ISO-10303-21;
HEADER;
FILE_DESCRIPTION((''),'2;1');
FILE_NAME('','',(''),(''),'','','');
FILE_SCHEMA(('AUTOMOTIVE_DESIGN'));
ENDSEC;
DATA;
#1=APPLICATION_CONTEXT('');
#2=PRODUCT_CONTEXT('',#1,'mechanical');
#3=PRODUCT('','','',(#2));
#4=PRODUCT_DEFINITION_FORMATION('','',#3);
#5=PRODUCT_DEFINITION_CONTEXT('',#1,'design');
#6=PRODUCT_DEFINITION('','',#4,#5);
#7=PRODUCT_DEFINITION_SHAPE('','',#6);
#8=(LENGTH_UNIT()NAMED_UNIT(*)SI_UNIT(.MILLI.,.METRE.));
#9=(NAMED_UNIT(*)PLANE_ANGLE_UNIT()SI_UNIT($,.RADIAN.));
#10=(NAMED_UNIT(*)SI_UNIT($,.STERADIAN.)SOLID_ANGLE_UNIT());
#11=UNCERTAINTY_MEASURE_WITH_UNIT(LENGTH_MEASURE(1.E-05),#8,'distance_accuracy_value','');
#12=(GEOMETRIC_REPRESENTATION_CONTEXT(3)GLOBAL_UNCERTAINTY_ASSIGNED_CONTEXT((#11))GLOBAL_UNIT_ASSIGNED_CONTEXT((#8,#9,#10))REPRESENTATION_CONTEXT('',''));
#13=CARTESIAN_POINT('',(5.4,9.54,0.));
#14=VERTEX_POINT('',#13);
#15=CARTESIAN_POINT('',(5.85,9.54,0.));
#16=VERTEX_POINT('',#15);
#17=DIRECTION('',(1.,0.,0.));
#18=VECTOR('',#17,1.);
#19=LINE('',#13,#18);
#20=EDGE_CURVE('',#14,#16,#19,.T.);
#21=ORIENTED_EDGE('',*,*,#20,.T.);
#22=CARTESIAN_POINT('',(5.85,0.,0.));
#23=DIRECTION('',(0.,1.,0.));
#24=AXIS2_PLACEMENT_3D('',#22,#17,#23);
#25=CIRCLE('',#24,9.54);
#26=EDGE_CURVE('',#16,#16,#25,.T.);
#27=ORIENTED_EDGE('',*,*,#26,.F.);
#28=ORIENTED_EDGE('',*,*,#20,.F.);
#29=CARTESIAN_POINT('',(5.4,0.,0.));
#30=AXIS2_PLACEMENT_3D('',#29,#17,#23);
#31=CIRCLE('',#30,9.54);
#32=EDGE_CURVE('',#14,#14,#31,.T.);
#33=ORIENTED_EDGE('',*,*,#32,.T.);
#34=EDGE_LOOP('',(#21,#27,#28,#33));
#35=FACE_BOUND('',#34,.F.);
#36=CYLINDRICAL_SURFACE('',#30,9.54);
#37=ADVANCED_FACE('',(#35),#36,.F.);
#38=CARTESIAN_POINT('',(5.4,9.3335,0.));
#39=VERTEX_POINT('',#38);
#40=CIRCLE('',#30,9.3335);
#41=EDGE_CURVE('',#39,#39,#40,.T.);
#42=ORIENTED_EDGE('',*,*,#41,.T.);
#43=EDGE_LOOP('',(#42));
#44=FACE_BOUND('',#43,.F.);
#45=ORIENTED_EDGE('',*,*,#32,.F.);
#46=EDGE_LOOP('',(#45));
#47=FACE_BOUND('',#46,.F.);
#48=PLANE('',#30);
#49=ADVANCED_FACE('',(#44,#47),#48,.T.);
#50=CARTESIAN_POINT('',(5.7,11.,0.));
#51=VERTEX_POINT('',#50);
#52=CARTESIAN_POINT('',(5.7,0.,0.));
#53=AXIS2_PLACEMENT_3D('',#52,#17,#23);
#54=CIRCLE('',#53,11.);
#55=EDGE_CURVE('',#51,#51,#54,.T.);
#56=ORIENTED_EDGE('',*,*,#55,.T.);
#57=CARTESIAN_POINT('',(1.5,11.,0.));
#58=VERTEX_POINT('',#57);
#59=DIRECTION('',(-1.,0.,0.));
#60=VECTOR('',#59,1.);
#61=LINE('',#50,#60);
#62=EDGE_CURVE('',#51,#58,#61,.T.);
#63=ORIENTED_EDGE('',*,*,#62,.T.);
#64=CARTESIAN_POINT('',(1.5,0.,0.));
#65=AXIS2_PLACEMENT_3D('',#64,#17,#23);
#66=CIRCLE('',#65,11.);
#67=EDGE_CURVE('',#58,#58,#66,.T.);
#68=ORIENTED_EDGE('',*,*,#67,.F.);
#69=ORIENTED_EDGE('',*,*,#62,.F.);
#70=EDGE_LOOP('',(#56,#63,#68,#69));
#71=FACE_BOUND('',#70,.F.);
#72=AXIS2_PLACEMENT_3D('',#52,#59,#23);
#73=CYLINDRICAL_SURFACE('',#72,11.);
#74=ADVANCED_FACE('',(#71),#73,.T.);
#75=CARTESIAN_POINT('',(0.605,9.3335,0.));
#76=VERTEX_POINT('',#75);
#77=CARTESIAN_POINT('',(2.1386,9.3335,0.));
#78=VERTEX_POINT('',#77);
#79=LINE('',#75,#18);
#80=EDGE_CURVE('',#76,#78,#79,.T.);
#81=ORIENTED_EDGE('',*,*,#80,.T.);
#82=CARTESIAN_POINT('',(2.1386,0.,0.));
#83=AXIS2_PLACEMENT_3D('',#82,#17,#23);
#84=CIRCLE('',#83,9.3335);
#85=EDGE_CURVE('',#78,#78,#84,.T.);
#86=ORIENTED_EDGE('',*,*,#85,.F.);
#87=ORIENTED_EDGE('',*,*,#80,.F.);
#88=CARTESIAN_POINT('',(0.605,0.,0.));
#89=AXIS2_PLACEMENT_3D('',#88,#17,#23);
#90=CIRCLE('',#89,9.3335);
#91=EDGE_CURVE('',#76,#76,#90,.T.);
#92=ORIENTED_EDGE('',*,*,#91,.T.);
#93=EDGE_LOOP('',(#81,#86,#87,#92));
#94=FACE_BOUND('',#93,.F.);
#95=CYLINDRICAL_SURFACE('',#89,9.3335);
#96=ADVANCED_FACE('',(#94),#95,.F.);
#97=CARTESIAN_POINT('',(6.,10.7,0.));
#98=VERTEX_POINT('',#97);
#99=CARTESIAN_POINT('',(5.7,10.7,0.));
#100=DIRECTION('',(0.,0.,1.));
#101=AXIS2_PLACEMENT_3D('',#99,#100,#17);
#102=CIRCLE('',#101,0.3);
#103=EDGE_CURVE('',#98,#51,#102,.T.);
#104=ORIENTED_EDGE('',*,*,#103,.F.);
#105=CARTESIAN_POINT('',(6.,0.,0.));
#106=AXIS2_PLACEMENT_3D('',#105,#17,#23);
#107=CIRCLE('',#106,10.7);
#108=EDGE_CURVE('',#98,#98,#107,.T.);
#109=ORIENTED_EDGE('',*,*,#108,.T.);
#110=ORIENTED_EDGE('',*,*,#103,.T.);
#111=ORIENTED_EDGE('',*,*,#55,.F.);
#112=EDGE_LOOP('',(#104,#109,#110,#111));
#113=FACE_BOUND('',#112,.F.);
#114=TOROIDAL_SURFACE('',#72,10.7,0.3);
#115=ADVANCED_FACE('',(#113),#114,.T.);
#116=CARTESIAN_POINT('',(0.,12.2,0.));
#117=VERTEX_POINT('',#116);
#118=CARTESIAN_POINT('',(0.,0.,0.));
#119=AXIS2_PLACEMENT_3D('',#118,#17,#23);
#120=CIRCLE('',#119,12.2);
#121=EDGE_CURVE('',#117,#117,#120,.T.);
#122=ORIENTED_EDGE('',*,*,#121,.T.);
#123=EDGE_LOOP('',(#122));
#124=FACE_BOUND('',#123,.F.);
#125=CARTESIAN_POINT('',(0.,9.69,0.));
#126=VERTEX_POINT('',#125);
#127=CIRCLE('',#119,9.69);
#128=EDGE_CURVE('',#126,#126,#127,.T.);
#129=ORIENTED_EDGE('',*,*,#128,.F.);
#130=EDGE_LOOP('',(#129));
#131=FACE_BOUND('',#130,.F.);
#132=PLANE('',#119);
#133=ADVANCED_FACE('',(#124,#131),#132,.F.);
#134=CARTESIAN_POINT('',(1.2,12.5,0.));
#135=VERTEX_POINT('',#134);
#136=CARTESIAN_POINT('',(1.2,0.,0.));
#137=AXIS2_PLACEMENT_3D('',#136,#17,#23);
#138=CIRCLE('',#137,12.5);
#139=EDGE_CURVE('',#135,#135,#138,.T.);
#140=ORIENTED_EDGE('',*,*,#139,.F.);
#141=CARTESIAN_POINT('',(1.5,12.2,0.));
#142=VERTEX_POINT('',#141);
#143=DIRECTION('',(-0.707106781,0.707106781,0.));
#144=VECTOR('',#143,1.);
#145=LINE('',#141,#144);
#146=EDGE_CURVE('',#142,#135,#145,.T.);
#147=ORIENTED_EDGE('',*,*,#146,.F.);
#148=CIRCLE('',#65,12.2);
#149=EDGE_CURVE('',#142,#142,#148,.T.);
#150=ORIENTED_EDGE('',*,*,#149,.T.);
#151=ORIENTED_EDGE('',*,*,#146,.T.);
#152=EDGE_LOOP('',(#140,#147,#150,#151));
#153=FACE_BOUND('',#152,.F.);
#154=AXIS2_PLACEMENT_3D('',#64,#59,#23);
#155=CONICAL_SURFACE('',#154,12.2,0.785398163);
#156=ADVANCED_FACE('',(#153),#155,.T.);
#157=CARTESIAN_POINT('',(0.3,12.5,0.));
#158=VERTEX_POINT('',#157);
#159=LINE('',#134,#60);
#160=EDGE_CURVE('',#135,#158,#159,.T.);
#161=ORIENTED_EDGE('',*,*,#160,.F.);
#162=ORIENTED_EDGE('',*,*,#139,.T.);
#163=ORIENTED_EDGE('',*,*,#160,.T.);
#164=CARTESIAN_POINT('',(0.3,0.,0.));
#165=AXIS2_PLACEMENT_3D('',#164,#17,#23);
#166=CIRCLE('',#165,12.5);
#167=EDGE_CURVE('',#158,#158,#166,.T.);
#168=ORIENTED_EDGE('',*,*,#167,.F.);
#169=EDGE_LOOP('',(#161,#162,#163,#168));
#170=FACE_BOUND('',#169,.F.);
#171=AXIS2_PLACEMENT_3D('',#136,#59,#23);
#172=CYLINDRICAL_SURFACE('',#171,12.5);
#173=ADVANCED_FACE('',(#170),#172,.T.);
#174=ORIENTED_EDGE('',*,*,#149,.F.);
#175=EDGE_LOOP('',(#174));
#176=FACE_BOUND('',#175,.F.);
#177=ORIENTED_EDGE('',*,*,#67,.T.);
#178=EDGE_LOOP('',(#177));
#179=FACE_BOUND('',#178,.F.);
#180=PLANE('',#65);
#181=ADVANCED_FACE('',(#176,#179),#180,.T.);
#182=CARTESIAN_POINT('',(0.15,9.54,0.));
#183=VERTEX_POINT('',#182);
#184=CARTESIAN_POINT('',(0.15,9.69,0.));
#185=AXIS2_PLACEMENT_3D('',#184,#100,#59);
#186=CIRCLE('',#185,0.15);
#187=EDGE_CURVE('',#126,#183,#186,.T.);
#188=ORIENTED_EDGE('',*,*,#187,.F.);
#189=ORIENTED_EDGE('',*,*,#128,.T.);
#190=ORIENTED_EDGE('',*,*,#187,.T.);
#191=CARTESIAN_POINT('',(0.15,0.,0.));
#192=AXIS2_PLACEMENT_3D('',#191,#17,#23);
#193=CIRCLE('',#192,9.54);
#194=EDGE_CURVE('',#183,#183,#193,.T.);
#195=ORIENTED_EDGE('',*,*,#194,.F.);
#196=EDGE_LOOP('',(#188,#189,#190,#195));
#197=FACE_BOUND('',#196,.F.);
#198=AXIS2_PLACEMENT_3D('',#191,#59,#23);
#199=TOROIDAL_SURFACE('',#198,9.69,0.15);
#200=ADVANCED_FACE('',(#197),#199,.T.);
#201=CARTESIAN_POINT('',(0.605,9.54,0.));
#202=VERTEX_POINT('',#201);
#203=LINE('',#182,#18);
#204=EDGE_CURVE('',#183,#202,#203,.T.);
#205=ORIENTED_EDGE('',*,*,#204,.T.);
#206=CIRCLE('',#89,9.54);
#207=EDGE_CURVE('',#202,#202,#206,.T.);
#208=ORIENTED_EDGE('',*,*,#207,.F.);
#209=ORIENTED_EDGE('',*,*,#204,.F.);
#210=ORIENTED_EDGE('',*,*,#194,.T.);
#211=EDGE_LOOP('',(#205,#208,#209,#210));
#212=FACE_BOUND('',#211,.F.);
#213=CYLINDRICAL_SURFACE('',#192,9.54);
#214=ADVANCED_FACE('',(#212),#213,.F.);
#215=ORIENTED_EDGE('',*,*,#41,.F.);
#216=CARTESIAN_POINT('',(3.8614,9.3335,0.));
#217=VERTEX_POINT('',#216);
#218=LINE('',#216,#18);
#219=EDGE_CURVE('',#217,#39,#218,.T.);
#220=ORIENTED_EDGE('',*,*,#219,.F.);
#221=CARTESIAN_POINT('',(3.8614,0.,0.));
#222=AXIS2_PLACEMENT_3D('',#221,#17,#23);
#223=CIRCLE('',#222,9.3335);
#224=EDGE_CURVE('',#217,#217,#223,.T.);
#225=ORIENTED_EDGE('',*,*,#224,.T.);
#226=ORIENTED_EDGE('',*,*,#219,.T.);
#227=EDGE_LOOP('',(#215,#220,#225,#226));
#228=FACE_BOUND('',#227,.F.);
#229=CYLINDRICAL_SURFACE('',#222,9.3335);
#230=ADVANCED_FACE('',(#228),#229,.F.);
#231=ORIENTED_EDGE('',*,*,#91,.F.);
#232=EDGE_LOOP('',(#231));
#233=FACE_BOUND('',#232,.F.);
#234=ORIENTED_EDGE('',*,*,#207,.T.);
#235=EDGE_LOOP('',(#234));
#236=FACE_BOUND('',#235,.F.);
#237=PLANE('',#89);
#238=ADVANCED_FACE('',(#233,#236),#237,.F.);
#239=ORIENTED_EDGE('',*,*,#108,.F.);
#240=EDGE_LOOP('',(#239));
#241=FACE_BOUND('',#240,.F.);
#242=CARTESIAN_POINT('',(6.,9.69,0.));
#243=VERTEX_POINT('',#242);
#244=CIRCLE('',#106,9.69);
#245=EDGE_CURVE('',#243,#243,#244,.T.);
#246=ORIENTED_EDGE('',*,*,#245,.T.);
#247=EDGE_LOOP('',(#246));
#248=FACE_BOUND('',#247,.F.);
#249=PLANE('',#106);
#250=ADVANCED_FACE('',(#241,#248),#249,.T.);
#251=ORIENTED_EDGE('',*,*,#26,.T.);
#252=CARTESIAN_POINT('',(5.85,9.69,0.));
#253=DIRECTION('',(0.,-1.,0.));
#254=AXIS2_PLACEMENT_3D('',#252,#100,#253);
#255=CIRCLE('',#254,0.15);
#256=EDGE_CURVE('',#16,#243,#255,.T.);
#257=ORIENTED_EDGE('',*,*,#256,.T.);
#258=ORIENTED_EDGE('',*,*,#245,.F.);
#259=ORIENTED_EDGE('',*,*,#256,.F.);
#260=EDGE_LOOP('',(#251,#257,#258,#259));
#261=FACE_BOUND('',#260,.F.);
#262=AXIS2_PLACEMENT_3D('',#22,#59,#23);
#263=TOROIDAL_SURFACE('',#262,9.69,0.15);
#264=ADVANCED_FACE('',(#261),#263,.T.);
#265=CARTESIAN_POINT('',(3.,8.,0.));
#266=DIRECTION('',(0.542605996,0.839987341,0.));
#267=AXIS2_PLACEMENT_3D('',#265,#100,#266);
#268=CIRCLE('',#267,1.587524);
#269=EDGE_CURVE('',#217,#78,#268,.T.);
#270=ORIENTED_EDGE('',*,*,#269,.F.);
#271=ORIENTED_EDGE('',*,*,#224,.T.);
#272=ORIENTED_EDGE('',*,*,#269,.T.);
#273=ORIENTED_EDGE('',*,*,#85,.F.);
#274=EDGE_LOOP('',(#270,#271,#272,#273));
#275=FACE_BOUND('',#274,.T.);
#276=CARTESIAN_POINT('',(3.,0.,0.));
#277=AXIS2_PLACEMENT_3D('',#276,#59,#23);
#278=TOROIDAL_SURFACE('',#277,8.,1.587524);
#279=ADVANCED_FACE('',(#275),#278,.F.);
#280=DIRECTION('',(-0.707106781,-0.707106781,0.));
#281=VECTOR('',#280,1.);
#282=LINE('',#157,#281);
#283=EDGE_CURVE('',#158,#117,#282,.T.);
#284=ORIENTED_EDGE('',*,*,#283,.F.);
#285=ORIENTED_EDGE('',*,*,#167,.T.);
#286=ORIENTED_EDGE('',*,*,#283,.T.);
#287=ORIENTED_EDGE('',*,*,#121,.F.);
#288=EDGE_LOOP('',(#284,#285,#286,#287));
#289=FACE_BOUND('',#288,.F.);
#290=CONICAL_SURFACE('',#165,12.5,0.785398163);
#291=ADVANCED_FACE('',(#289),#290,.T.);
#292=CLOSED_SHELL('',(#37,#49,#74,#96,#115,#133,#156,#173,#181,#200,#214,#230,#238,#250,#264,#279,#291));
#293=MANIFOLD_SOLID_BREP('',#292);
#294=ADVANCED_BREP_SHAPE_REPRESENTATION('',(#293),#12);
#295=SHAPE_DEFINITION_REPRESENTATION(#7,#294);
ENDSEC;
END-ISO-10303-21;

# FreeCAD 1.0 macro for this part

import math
import FreeCAD as App
import Part
import Sketcher

V = App.Vector
Q = App.Units.Quantity

doc = App.newDocument("Part")
params = doc.addObject("Spreadsheet::Sheet", "Params")
for row, (alias, value) in enumerate([
    ("sketch1_radius", "0.3 mm"),
    ("sketch1_radius2", "0.15 mm"),
    ("sketch1_width", "4.2 mm"),
    ("sketch1_width2", "0.9 mm"),
    ("sketch1_height", "1.2 mm"),
    ("revolution_angle", "360 deg"),
], start=1):
    params.set(f"A{row}", alias)
    params.set(f"B{row}", "=" + value)
    params.setAlias(f"B{row}", alias)

body = doc.addObject("PartDesign::Body", "Body")

# Sketch on XY plane
sketch1 = doc.addObject("Sketcher::SketchObject", "Sketch")
body.addObject(sketch1)
sketch1.AttachmentSupport = (doc.XY_Plane, [""])
sketch1.MapMode = "FlatFace"
sketch1.addGeometry([
    Part.LineSegment(V(0.3, 12.5, 0), V(0, 12.2, 0)),  # 0
    Part.LineSegment(V(0, 12.2, 0), V(0, 9.69, 0)),  # 1
    Part.ArcOfCircle(Part.Circle(V(0.15, 9.69, 0), V(0, 0, 1), 0.15), math.radians(180), math.radians(270)),  # 2
    Part.LineSegment(V(0.15, 9.54, 0), V(0.6, 9.54, 0)),  # 3
    Part.LineSegment(V(0.6, 9.54, 0), V(0.6, 9.33, 0)),  # 4
    Part.LineSegment(V(0.6, 9.33, 0), V(2.14, 9.33, 0)),  # 5
    Part.ArcOfCircle(Part.Circle(V(3, 8, 0), V(0, 0, 1), 1.59), math.radians(57), math.radians(123)),  # 6
    Part.LineSegment(V(3.86, 9.33, 0), V(5.4, 9.33, 0)),  # 7
    Part.LineSegment(V(5.4, 9.33, 0), V(5.4, 9.54, 0)),  # 8
    Part.LineSegment(V(5.4, 9.54, 0), V(5.85, 9.54, 0)),  # 9
    Part.ArcOfCircle(Part.Circle(V(5.85, 9.69, 0), V(0, 0, 1), 0.15), math.radians(-90), math.radians(0)),  # 10
    Part.LineSegment(V(6, 9.69, 0), V(6, 10.7, 0)),  # 11
    Part.ArcOfCircle(Part.Circle(V(5.7, 10.7, 0), V(0, 0, 1), 0.3), math.radians(0), math.radians(90)),  # 12
    Part.LineSegment(V(5.7, 11, 0), V(1.5, 11, 0)),  # 13
    Part.LineSegment(V(1.5, 11, 0), V(1.5, 12.2, 0)),  # 14
    Part.LineSegment(V(1.5, 12.2, 0), V(1.2, 12.5, 0)),  # 15
    Part.LineSegment(V(1.2, 12.5, 0), V(0.3, 12.5, 0)),  # 16
], False)
sketch1.addConstraint([
    Sketcher.Constraint("Coincident", 0, 2, 1, 1),
    Sketcher.Constraint("Tangent", 1, 2, 2, 1),
    Sketcher.Constraint("Tangent", 2, 2, 3, 1),
    Sketcher.Constraint("Coincident", 3, 2, 4, 1),
    Sketcher.Constraint("Coincident", 4, 2, 5, 1),
    Sketcher.Constraint("Coincident", 5, 2, 6, 2),
    Sketcher.Constraint("Coincident", 6, 1, 7, 1),
    Sketcher.Constraint("Coincident", 7, 2, 8, 1),
    Sketcher.Constraint("Coincident", 8, 2, 9, 1),
    Sketcher.Constraint("Tangent", 9, 2, 10, 1),
    Sketcher.Constraint("Tangent", 10, 2, 11, 1),
    Sketcher.Constraint("Tangent", 11, 2, 12, 1),
    Sketcher.Constraint("Tangent", 12, 2, 13, 1),
    Sketcher.Constraint("Coincident", 13, 2, 14, 1),
    Sketcher.Constraint("Coincident", 14, 2, 15, 1),
    Sketcher.Constraint("Coincident", 15, 2, 16, 1),
    Sketcher.Constraint("Coincident", 16, 2, 0, 1),
    Sketcher.Constraint("Vertical", 1),
    Sketcher.Constraint("Horizontal", 3),
    Sketcher.Constraint("Vertical", 4),
    Sketcher.Constraint("Horizontal", 5),
    Sketcher.Constraint("Horizontal", 7),
    Sketcher.Constraint("Vertical", 8),
    Sketcher.Constraint("Horizontal", 9),
    Sketcher.Constraint("Vertical", 11),
    Sketcher.Constraint("Horizontal", 13),
    Sketcher.Constraint("Vertical", 14),
    Sketcher.Constraint("Horizontal", 16),
    Sketcher.Constraint("Equal", 2, 10),
    Sketcher.Constraint("PointOnObject", 0, 2, -2),
    Sketcher.Constraint("Perpendicular", 0, 15),
    Sketcher.Constraint("Horizontal", 2, 3, 10, 3),
    Sketcher.Constraint("Horizontal", 5, 2, 6, 1),
    Sketcher.Constraint("Horizontal", 0, 2, 14, 2),
    Sketcher.Constraint("Equal", 0, 15),
    Sketcher.Constraint("Radius", 12, Q("0.3 mm")),
    Sketcher.Constraint("Radius", 2, Q("0.15 mm")),
    Sketcher.Constraint("DistanceX", 13, 2, 13, 1, Q("4.2 mm")),
    Sketcher.Constraint("DistanceX", 16, 2, 16, 1, Q("0.9 mm")),
    Sketcher.Constraint("DistanceY", 14, 1, 14, 2, Q("1.2 mm")),
    Sketcher.Constraint("DistanceX", -1, 1, 6, 3, Q("3 mm")),
    Sketcher.Constraint("DistanceY", -1, 1, 6, 3, Q("8 mm")),
    Sketcher.Constraint("DistanceX", -1, 1, 10, 2, Q("6 mm")),
    Sketcher.Constraint("DistanceY", -1, 1, 12, 2, Q("11 mm")),
    Sketcher.Constraint("DistanceX", 9, 1, 9, 2, Q("0.45 mm")),
    Sketcher.Constraint("DistanceY", 1, 2, 1, 1, Q("2.51 mm")),
    Sketcher.Constraint("Radius", 6, Q("1.5875 mm")),
    Sketcher.Constraint("DistanceX", 3, 1, 3, 2, Q("0.455 mm")),
    Sketcher.Constraint("DistanceX", 5, 1, 5, 2, Q("1.5336 mm")),
])
sketch1.setExpression("Constraints[35]", "Params.sketch1_radius")
sketch1.setExpression("Constraints[36]", "Params.sketch1_radius2")
sketch1.setExpression("Constraints[37]", "Params.sketch1_width")
sketch1.setExpression("Constraints[38]", "Params.sketch1_width2")
sketch1.setExpression("Constraints[39]", "Params.sketch1_height")
revolution = doc.addObject("PartDesign::Revolution", "Revolution")
body.addObject(revolution)
revolution.Profile = sketch1
revolution.ReferenceAxis = (sketch1, ["H_Axis"])
revolution.setExpression("Angle", "Params.revolution_angle")

doc.recompute()
